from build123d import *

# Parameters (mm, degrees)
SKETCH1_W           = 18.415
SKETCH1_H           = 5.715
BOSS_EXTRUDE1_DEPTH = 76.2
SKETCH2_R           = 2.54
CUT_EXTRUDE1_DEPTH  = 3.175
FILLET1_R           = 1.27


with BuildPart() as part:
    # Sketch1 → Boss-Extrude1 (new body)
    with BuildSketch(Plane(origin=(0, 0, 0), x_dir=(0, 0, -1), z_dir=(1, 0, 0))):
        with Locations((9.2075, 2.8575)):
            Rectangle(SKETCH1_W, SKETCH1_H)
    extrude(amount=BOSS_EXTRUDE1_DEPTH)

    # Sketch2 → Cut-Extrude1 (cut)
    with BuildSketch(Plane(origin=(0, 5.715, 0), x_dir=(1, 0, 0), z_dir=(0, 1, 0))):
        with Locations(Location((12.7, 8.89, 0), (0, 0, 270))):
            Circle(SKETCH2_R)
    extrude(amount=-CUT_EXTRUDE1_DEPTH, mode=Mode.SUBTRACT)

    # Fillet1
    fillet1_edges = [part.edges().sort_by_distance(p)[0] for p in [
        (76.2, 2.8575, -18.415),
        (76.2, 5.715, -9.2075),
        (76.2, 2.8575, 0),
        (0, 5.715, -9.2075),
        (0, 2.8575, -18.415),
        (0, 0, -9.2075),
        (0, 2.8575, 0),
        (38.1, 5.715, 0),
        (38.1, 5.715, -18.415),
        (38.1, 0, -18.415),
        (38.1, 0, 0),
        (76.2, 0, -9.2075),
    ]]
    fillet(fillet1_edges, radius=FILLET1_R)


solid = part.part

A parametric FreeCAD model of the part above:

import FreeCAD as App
import Part
import Sketcher
Q = App.Units.Quantity


def edges_at(feature, points):
    """Names of the edges that pass closest to the given points."""
    edges = feature.Shape.Edges
    near = lambda p: min(range(len(edges)), key=lambda i: edges[i].distToShape(Part.Vertex(*p))[0])
    return sorted({f"Edge{near(p) + 1}" for p in points})

doc = App.newDocument("Part")
body = doc.addObject("PartDesign::Body", "Body")

# Sketch on YZ plane
sketch1 = doc.addObject("Sketcher::SketchObject", "Sketch")
body.addObject(sketch1)
sketch1.AttachmentSupport = (doc.YZ_Plane, [""])
sketch1.MapMode = "FlatFace"
sketch1.addGeometry(Part.LineSegment(App.Vector(6, 0, 0), App.Vector(0, 0, 0)), False)
sketch1.addGeometry(Part.LineSegment(App.Vector(0, 0, 0), App.Vector(0, -18, 0)), False)
sketch1.addGeometry(Part.LineSegment(App.Vector(0, -18, 0), App.Vector(6, -18, 0)), False)
sketch1.addGeometry(Part.LineSegment(App.Vector(6, -18, 0), App.Vector(6, 0, 0)), False)
sketch1.addConstraint(Sketcher.Constraint("Coincident", 0, 2, 1, 1))
sketch1.addConstraint(Sketcher.Constraint("Coincident", 1, 2, 2, 1))
sketch1.addConstraint(Sketcher.Constraint("Coincident", 2, 2, 3, 1))
sketch1.addConstraint(Sketcher.Constraint("Coincident", 3, 2, 0, 1))
sketch1.addConstraint(Sketcher.Constraint("Horizontal", 0))
sketch1.addConstraint(Sketcher.Constraint("Vertical", 1))
sketch1.addConstraint(Sketcher.Constraint("Horizontal", 2))
sketch1.addConstraint(Sketcher.Constraint("Vertical", 3))
sketch1.addConstraint(Sketcher.Constraint("Coincident", 0, 2, -1, 1))
sketch1.addConstraint(Sketcher.Constraint("DistanceX", 0, 2, 0, 1, Q("0.225 in")))
sketch1.addConstraint(Sketcher.Constraint("DistanceY", 1, 2, 1, 1, Q("0.725 in")))
pad1 = doc.addObject("PartDesign::Pad", "Pad")
body.addObject(pad1)
pad1.Profile = sketch1
pad1.Length = Q("3 in")

# Sketch on XZ plane
sketch2 = doc.addObject("Sketcher::SketchObject", "Sketch001")
body.addObject(sketch2)
sketch2.AttachmentSupport = (doc.XZ_Plane, [""])
sketch2.MapMode = "FlatFace"
sketch2.AttachmentOffset = App.Placement(App.Vector(0, 0, -0.225 * 25.4), App.Rotation())
sketch2.addGeometry(Part.Circle(App.Vector(12.7, -8.9, 0), App.Vector(0, 0, 1), 2.5), False)
sketch2.addConstraint(Sketcher.Constraint("Diameter", 0, Q("0.2 in")))
sketch2.addConstraint(Sketcher.Constraint("DistanceX", -1, 1, 0, 3, Q("0.5 in")))
sketch2.addConstraint(Sketcher.Constraint("DistanceY", 0, 3, -1, 1, Q("0.35 in")))
pocket1 = doc.addObject("PartDesign::Pocket", "Pocket")
body.addObject(pocket1)
pocket1.Profile = sketch2
pocket1.Length = Q("0.125 in")
pocket1.Reversed = True
doc.recompute()

fillet = doc.addObject("PartDesign::Fillet", "Fillet")
body.addObject(fillet)
fillet.Base = (pocket1, edges_at(pocket1, [
    (76.2, 2.857, -18.415),
    (76.2, 5.715, -9.207),
    (76.2, 2.857, 0),
    (0, 5.715, -9.207),
    (0, 2.857, -18.415),
    (0, 0, -9.207),
    (0, 2.857, 0),
    (38.1, 5.715, 0),
    (38.1, 5.715, -18.415),
    (38.1, 0, -18.415),
    (38.1, 0, 0),
    (76.2, 0, -9.207),
]))
fillet.Radius = Q("0.05 in")

doc.recompute()
